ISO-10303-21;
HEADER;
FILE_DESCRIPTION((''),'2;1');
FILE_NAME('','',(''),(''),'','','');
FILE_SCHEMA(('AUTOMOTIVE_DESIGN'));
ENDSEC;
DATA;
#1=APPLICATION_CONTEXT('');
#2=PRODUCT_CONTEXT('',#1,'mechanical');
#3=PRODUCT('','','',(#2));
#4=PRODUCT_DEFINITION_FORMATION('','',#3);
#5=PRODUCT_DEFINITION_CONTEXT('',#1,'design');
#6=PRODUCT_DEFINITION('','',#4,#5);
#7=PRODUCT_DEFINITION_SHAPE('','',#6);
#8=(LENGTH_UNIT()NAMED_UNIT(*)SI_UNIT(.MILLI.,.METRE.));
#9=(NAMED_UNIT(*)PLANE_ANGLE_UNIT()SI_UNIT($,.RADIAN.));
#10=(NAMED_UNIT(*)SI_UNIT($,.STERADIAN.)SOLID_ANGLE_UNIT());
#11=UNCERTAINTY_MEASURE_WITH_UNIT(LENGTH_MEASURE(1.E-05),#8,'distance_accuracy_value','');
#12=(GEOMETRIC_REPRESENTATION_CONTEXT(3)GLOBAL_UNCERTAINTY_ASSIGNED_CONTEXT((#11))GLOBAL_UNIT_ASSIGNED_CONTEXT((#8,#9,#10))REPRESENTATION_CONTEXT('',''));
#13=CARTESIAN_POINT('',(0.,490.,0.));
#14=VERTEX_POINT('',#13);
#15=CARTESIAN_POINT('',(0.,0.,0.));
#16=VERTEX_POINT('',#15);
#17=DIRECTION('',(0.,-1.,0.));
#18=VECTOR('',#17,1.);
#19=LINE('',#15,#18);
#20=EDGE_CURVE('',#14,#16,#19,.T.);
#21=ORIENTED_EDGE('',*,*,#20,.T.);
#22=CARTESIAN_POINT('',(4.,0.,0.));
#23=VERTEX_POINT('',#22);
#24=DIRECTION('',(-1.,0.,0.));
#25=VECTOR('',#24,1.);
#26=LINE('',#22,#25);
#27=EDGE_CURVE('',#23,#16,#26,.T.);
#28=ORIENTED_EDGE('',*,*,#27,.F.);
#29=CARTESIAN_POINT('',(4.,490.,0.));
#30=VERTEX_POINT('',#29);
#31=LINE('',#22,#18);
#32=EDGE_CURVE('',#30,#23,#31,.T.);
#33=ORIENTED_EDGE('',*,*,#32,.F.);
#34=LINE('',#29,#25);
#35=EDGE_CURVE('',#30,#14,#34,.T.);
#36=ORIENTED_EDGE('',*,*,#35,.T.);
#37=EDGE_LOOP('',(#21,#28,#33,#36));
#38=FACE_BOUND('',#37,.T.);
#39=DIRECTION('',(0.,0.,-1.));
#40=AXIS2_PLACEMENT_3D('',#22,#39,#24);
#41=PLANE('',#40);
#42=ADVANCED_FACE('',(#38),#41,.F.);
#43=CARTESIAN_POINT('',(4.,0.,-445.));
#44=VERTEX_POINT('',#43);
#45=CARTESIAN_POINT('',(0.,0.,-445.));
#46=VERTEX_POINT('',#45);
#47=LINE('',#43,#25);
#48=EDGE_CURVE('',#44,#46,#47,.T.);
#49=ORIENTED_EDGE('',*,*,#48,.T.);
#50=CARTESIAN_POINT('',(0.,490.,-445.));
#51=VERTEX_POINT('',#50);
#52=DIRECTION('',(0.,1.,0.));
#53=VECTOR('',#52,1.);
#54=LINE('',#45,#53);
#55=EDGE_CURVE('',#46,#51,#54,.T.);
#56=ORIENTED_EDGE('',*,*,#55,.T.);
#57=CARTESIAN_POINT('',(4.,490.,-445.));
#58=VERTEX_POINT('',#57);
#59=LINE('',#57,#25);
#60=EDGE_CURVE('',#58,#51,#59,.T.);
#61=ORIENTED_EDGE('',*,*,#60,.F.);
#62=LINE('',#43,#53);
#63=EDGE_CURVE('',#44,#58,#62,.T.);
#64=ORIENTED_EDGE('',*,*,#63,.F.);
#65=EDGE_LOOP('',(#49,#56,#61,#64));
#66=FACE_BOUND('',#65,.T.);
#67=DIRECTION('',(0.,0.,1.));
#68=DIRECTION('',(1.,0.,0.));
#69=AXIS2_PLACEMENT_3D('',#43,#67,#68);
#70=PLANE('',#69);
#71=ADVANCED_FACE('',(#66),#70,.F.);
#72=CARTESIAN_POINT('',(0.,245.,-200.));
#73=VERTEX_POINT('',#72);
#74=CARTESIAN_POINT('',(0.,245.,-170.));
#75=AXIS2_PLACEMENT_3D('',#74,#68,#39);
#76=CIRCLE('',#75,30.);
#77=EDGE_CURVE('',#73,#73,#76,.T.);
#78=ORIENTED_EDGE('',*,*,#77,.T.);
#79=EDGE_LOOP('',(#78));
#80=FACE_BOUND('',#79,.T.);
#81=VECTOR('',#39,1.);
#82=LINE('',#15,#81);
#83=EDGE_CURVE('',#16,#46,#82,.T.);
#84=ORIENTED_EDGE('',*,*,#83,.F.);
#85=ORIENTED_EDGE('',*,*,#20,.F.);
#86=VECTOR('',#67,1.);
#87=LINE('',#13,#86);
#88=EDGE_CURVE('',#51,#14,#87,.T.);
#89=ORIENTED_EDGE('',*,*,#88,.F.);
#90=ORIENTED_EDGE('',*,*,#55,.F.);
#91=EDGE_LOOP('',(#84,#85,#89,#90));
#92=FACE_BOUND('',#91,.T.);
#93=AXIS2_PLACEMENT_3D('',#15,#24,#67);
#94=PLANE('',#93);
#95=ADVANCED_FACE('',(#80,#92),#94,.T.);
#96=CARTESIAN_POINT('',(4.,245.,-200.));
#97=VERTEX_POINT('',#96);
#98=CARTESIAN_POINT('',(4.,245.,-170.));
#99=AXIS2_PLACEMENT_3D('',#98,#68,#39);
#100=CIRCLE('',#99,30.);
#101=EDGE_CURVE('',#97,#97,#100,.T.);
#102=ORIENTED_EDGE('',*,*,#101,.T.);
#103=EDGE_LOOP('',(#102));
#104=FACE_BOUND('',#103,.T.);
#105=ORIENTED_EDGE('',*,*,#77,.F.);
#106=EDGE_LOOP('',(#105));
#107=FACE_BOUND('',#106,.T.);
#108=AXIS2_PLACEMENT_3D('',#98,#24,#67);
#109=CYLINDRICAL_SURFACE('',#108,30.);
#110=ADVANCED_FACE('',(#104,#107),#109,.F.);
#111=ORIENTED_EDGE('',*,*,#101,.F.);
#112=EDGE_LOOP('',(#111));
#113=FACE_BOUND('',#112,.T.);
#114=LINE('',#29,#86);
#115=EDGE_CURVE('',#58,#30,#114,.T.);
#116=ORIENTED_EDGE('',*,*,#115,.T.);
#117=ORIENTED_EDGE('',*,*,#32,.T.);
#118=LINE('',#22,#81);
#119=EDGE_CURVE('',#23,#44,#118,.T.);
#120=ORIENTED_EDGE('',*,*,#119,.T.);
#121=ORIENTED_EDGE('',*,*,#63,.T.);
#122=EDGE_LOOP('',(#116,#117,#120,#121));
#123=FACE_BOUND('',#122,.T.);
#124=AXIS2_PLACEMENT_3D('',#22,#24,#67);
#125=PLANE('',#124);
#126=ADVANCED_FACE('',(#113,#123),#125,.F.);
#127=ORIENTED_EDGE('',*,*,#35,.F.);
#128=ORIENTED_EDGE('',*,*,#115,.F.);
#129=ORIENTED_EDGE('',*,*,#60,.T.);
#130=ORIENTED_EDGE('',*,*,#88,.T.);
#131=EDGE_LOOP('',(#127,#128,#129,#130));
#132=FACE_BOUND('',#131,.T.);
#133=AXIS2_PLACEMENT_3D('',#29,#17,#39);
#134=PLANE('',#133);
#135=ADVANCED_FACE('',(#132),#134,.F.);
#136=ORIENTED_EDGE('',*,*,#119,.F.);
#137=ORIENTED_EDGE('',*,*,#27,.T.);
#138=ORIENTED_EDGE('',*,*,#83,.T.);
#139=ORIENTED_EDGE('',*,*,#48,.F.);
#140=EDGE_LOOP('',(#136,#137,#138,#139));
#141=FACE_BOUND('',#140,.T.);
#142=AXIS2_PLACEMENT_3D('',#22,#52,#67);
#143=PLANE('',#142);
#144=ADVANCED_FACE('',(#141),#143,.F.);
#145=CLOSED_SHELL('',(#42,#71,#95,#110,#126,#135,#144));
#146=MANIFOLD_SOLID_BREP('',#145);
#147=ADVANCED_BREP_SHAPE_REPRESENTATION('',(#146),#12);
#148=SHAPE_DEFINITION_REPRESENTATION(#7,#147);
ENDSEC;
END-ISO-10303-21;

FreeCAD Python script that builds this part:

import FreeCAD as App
import Part
import Sketcher
Q = App.Units.Quantity


def add_polygon(sketch, points):
    """Adds a closed chain of lines whose ends are joined by coincident constraints."""
    first, n = sketch.GeometryCount, len(points)
    for a, b in zip(points, points[1:] + points[:1]):
        sketch.addGeometry(Part.LineSegment(App.Vector(*a, 0), App.Vector(*b, 0)), False)
    for i in range(n):
        sketch.addConstraint(Sketcher.Constraint("Coincident", first + i, 2, first + (i + 1) % n, 1))

doc = App.newDocument("Part")
body = doc.addObject("PartDesign::Body", "Body")

sketch1 = body.newObject("Sketcher::SketchObject", "Sketch")
sketch1.AttachmentSupport = (doc.getObject("YZ_Plane"), [""])
sketch1.MapMode = "FlatFace"
add_polygon(sketch1, [(490, 0), (0, 0), (0, -445), (490, -445)])
sketch1.addGeometry(Part.Circle(App.Vector(245, -170, 0), App.Vector(0, 0, 1), 30), False)
sketch1.addConstraint([
    Sketcher.Constraint("Horizontal", 0),
    Sketcher.Constraint("Vertical", 1),
    Sketcher.Constraint("Horizontal", 2),
    Sketcher.Constraint("Vertical", 3),
    Sketcher.Constraint("Coincident", 0, 2, -1, 1),
    Sketcher.Constraint("Diameter", 4, Q("60 mm")),
    Sketcher.Constraint("DistanceX", 0, 2, 0, 1, Q("490 mm")),
    Sketcher.Constraint("DistanceY", 1, 2, 1, 1, Q("445 mm")),
    Sketcher.Constraint("DistanceX", -1, 1, 4, 3, Q("245 mm")),
    Sketcher.Constraint("DistanceY", 4, 3, -1, 1, Q("170 mm")),
])
pad1 = body.newObject("PartDesign::Pad", "Pad")
pad1.Profile = sketch1
pad1.Length = 4

doc.recompute()
